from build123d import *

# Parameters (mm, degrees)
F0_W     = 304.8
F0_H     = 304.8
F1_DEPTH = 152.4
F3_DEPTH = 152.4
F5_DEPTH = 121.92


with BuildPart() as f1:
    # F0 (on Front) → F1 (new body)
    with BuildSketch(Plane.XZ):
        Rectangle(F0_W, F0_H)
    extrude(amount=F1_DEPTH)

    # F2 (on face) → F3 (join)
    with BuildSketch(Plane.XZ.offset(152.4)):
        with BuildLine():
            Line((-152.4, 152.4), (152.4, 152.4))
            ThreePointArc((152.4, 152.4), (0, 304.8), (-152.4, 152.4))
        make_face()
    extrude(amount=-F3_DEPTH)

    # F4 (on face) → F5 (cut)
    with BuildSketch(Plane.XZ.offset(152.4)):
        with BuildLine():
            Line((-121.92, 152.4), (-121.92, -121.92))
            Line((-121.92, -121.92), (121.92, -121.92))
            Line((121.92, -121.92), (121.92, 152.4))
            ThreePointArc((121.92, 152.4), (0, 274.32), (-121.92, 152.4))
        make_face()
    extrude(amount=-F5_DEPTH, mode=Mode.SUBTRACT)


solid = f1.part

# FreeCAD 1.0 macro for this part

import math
import FreeCAD as App
import Part
import Sketcher
from FreeCAD import Vector
Q = App.Units.Quantity


def add_polygon(sketch, points):
    """Adds a closed chain of lines whose ends are joined by coincident constraints."""
    first, n = sketch.GeometryCount, len(points)
    for a, b in zip(points, points[1:] + points[:1]):
        sketch.addGeometry(Part.LineSegment(App.Vector(*a, 0), App.Vector(*b, 0)), False)
    for i in range(n):
        sketch.addConstraint(Sketcher.Constraint("Coincident", first + i, 2, first + (i + 1) % n, 1))

doc = App.newDocument("Part")
body = doc.addObject("PartDesign::Body", "Body")

# Sketch on XZ plane
sketch1 = body.newObject("Sketcher::SketchObject", "Sketch")
sketch1.AttachmentSupport = (doc.getObject("XZ_Plane"), [""])
sketch1.MapMode = "FlatFace"
add_polygon(sketch1, [(-152, 152), (-152, -152), (152, -152), (152, 152)])  # lines 0-3
sketch1.addConstraint([
    Sketcher.Constraint("Vertical", 0),
    Sketcher.Constraint("Horizontal", 1),
    Sketcher.Constraint("Vertical", 2),
    Sketcher.Constraint("Horizontal", 3),
    Sketcher.Constraint("Symmetric", 0, 2, 2, 2, -1, 1),
    Sketcher.Constraint("Equal", 3, 0),
    Sketcher.Constraint("DistanceX", 1, 1, 1, 2, Q("12 in")),
])
pad1 = body.newObject("PartDesign::Pad", "Pad")
pad1.Profile = sketch1
pad1.Length = Q("6 in")

# Sketch on XZ plane
sketch2 = body.newObject("Sketcher::SketchObject", "Sketch001")
sketch2.AttachmentSupport = (doc.getObject("XZ_Plane"), [""])
sketch2.MapMode = "FlatFace"
sketch2.AttachmentOffset = App.Placement(Vector(0, 0, 6 * 25.4), App.Rotation())
sketch2.addGeometry([
    Part.LineSegment(Vector(-152, 152, 0), Vector(152, 152, 0)),
    Part.ArcOfCircle(Part.Circle(Vector(0, 152, 0), Vector(0, 0, 1), 152), math.radians(0), math.radians(180)),
], False)
sketch2.addConstraint([
    Sketcher.Constraint("Coincident", 0, 1, 1, 2),
    Sketcher.Constraint("Coincident", 1, 1, 0, 2),
    Sketcher.Constraint("Horizontal", 0),
    Sketcher.Constraint("PointOnObject", 1, 3, -2),
    Sketcher.Constraint("Horizontal", 1, 3, 0, 1),
    Sketcher.Constraint("Radius", 1, Q("6 in")),
    Sketcher.Constraint("DistanceY", -1, 1, 1, 3, Q("6 in")),
])
pad2 = body.newObject("PartDesign::Pad", "Pad001")
pad2.Profile = sketch2
pad2.Length = Q("6 in")
pad2.Reversed = True

# Sketch on XZ plane
sketch3 = body.newObject("Sketcher::SketchObject", "Sketch002")
sketch3.AttachmentSupport = (doc.getObject("XZ_Plane"), [""])
sketch3.MapMode = "FlatFace"
sketch3.AttachmentOffset = App.Placement(Vector(0, 0, 6 * 25.4), App.Rotation())
sketch3.addGeometry([
    Part.LineSegment(Vector(-122, 152, 0), Vector(-122, -122, 0)),
    Part.LineSegment(Vector(-122, -122, 0), Vector(122, -122, 0)),
    Part.LineSegment(Vector(122, -122, 0), Vector(122, 152, 0)),
    Part.ArcOfCircle(Part.Circle(Vector(0, 152, 0), Vector(0, 0, 1), 122), math.radians(0), math.radians(180)),
], False)
sketch3.addConstraint([
    Sketcher.Constraint("Coincident", 0, 2, 1, 1),
    Sketcher.Constraint("Coincident", 1, 2, 2, 1),
    Sketcher.Constraint("Tangent", 2, 2, 3, 1),
    Sketcher.Constraint("Tangent", 3, 2, 0, 1),
    Sketcher.Constraint("Vertical", 0),
    Sketcher.Constraint("Horizontal", 1),
    Sketcher.Constraint("Vertical", 2),
    Sketcher.Constraint("PointOnObject", 3, 3, -2),
    Sketcher.Constraint("Radius", 3, Q("4.8 in")),
    Sketcher.Constraint("DistanceY", 0, 2, 0, 1, Q("10.8 in")),
    Sketcher.Constraint("DistanceY", -1, 1, 3, 3, Q("6 in")),
])
pocket1 = body.newObject("PartDesign::Pocket", "Pocket")
pocket1.Profile = sketch3
pocket1.Length = Q("4.8 in")

doc.recompute()
